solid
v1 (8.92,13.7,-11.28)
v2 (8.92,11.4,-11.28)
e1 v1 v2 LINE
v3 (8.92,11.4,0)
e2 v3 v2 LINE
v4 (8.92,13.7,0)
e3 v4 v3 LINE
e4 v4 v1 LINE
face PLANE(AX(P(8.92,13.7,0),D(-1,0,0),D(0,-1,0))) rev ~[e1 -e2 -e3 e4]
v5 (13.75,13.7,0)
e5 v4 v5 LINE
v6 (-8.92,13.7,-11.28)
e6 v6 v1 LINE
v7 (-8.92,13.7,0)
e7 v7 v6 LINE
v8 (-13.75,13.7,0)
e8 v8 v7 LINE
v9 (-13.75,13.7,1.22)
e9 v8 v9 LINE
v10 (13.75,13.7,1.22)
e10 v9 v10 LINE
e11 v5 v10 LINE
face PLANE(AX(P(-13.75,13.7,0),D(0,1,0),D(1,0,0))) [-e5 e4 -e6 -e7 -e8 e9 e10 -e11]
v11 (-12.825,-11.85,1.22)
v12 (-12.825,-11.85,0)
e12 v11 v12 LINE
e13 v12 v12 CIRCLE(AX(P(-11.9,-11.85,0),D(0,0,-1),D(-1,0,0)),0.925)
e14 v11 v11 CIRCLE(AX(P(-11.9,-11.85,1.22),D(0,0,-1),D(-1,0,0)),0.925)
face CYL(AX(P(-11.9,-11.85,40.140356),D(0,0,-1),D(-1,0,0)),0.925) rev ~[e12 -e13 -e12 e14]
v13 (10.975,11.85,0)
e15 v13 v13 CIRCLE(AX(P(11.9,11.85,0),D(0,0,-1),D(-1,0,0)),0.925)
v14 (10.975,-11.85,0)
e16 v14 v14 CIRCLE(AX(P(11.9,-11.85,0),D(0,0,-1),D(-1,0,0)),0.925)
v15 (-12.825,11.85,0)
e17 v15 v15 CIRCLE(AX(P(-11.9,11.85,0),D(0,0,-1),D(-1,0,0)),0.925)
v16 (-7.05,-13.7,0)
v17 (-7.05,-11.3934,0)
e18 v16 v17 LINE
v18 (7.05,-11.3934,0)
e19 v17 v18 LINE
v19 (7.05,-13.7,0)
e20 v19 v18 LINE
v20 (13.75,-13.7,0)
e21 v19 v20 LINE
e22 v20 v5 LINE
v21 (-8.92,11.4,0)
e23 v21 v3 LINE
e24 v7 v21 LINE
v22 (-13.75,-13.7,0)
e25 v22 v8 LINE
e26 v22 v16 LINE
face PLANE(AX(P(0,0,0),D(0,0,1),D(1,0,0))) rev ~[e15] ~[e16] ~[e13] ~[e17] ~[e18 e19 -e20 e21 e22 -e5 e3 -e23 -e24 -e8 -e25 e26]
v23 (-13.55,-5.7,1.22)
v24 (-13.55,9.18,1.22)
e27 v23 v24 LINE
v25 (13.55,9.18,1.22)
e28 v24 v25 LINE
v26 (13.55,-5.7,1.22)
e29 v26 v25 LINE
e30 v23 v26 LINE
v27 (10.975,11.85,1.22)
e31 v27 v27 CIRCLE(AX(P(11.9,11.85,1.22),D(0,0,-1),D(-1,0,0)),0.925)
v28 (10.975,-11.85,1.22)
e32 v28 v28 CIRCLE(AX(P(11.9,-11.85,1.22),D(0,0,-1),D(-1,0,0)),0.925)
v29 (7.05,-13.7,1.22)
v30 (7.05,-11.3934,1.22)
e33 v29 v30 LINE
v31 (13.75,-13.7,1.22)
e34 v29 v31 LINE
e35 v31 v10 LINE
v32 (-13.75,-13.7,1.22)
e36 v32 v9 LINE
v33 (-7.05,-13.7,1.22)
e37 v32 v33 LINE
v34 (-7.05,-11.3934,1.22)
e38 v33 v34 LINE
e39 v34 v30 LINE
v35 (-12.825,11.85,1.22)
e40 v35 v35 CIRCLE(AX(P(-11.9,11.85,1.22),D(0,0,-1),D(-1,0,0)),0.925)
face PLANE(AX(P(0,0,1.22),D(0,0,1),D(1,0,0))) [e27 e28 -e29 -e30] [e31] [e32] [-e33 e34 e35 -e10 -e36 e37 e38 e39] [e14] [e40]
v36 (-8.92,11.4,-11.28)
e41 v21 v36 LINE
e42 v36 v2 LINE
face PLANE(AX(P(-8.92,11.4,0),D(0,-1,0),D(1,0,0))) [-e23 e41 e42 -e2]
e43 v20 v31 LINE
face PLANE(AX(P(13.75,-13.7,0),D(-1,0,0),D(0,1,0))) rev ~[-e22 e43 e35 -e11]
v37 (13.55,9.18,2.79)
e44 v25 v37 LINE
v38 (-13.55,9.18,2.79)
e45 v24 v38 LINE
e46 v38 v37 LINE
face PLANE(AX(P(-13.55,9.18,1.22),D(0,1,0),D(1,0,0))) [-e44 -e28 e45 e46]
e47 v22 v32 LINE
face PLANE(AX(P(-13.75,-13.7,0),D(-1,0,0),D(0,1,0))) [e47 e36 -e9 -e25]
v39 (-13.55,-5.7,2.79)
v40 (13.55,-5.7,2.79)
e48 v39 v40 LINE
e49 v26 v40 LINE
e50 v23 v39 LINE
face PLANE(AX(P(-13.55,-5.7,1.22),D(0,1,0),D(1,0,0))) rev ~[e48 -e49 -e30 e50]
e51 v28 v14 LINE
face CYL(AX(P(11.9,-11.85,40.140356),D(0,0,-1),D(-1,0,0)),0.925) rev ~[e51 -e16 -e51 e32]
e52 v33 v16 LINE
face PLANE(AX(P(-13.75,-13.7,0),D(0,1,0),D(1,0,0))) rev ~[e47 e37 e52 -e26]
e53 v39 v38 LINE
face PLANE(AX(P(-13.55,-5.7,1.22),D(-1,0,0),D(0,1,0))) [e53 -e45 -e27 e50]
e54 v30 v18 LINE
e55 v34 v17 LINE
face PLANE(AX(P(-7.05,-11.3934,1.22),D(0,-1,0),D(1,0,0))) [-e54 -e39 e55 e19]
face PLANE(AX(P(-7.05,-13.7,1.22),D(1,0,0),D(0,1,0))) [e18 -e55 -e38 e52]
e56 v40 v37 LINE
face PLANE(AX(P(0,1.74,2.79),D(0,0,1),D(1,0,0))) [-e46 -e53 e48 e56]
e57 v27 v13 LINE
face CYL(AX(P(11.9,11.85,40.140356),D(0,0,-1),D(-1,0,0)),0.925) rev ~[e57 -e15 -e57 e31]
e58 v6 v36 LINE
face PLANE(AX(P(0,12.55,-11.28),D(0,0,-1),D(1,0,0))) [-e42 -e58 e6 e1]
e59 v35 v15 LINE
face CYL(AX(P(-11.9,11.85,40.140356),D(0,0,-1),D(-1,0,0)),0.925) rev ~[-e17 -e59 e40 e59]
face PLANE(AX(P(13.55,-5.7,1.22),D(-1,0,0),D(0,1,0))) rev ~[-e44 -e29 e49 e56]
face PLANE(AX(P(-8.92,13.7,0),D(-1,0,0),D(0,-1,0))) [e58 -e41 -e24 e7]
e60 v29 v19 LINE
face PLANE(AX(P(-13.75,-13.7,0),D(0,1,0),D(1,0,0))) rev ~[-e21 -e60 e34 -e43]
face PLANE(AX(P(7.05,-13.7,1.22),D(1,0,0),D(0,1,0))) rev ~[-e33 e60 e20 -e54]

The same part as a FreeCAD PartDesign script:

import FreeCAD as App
import Part
import Sketcher
Q = App.Units.Quantity

doc = App.newDocument("Part")
body = doc.addObject("PartDesign::Body", "Body")

sketch1 = body.newObject("Sketcher::SketchObject", "Sketch")
sketch1.AttachmentSupport = (doc.getObject("XY_Plane"), [""])
sketch1.MapMode = "FlatFace"
sketch1.addGeometry([
    Part.LineSegment(App.Vector(-14, 14, 0), App.Vector(-14, -14, 0)),
    Part.LineSegment(App.Vector(-14, -14, 0), App.Vector(14, -14, 0)),
    Part.LineSegment(App.Vector(14, -14, 0), App.Vector(14, 14, 0)),
    Part.LineSegment(App.Vector(14, 14, 0), App.Vector(-14, 14, 0)),
], False)
sketch1.addConstraint([
    Sketcher.Constraint("Coincident", 0, 2, 1, 1),
    Sketcher.Constraint("Coincident", 1, 2, 2, 1),
    Sketcher.Constraint("Coincident", 2, 2, 3, 1),
    Sketcher.Constraint("Coincident", 3, 2, 0, 1),
    Sketcher.Constraint("Vertical", 0),
    Sketcher.Constraint("Horizontal", 1),
    Sketcher.Constraint("Vertical", 2),
    Sketcher.Constraint("Horizontal", 3),
    Sketcher.Constraint("Symmetric", 0, 2, 2, 2, -1, 1),
    Sketcher.Constraint("DistanceX", 1, 1, 1, 2, Q("27.5 mm")),
    Sketcher.Constraint("DistanceY", 0, 2, 0, 1, Q("27.4 mm")),
])
pad1 = body.newObject("PartDesign::Pad", "Pad")
pad1.Profile = sketch1
pad1.Length = 1.22

sketch2 = body.newObject("Sketcher::SketchObject", "Sketch001")
sketch2.AttachmentSupport = (doc.getObject("XY_Plane"), [""])
sketch2.MapMode = "FlatFace"
sketch2.AttachmentOffset = App.Placement(App.Vector(0, 0, 1.22), App.Rotation())
sketch2.addGeometry([
    Part.LineSegment(App.Vector(-7, -11.4, 0), App.Vector(-7, -13.7, 0)),
    Part.LineSegment(App.Vector(-7, -13.7, 0), App.Vector(7, -13.7, 0)),
    Part.LineSegment(App.Vector(7, -13.7, 0), App.Vector(7, -11.4, 0)),
    Part.LineSegment(App.Vector(7, -11.4, 0), App.Vector(-7, -11.4, 0)),
], False)
sketch2.addConstraint([
    Sketcher.Constraint("Coincident", 0, 2, 1, 1),
    Sketcher.Constraint("Coincident", 1, 2, 2, 1),
    Sketcher.Constraint("Coincident", 2, 2, 3, 1),
    Sketcher.Constraint("Coincident", 3, 2, 0, 1),
    Sketcher.Constraint("Vertical", 0),
    Sketcher.Constraint("Horizontal", 1),
    Sketcher.Constraint("Vertical", 2),
    Sketcher.Constraint("Horizontal", 3),
    Sketcher.Constraint("DistanceX", 1, 1, 1, 2, Q("14.1 mm")),
    Sketcher.Constraint("DistanceY", 0, 2, -1, 1, Q("13.7 mm")),
    Sketcher.Constraint("DistanceX", 0, 2, -1, 1, Q("7.05 mm")),
    Sketcher.Constraint("DistanceY", 0, 2, 0, 1, Q("2.3066 mm")),
])
pocket1 = body.newObject("PartDesign::Pocket", "Pocket")
pocket1.Profile = sketch2
pocket1.Length = 25.4

sketch3 = body.newObject("Sketcher::SketchObject", "Sketch002")
sketch3.AttachmentSupport = (doc.getObject("XY_Plane"), [""])
sketch3.MapMode = "FlatFace"
sketch3.AttachmentOffset = App.Placement(App.Vector(0, 0, 1.22), App.Rotation())
sketch3.addGeometry([
    Part.LineSegment(App.Vector(-14, 9, 0), App.Vector(-14, -6, 0)),
    Part.LineSegment(App.Vector(-14, -6, 0), App.Vector(14, -6, 0)),
    Part.LineSegment(App.Vector(14, -6, 0), App.Vector(14, 9, 0)),
    Part.LineSegment(App.Vector(14, 9, 0), App.Vector(-14, 9, 0)),
], False)
sketch3.addConstraint([
    Sketcher.Constraint("Coincident", 0, 2, 1, 1),
    Sketcher.Constraint("Coincident", 1, 2, 2, 1),
    Sketcher.Constraint("Coincident", 2, 2, 3, 1),
    Sketcher.Constraint("Coincident", 3, 2, 0, 1),
    Sketcher.Constraint("Vertical", 0),
    Sketcher.Constraint("Horizontal", 1),
    Sketcher.Constraint("Vertical", 2),
    Sketcher.Constraint("Horizontal", 3),
    Sketcher.Constraint("DistanceX", 1, 1, 1, 2, Q("27.1 mm")),
    Sketcher.Constraint("DistanceY", 0, 2, 0, 1, Q("14.88 mm")),
    Sketcher.Constraint("DistanceY", 0, 2, -1, 1, Q("5.7 mm")),
    Sketcher.Constraint("DistanceX", 0, 2, -1, 1, Q("13.55 mm")),
])
pad2 = body.newObject("PartDesign::Pad", "Pad001")
pad2.Profile = sketch3
pad2.Length = 1.57

sketch4 = body.newObject("Sketcher::SketchObject", "Sketch003")
sketch4.AttachmentSupport = (doc.getObject("XY_Plane"), [""])
sketch4.MapMode = "FlatFace"
sketch4.AttachmentOffset = App.Placement(App.Vector(0, 0, 1.22), App.Rotation())
sketch4.addGeometry([
    Part.Circle(App.Vector(-11.9, -11.8, 0), App.Vector(0, 0, 1), 0.9),
    Part.Circle(App.Vector(-11.9, 11.8, 0), App.Vector(0, 0, 1), 0.9),
    Part.Circle(App.Vector(11.9, 11.8, 0), App.Vector(0, 0, 1), 0.9),
    Part.Circle(App.Vector(11.9, -11.8, 0), App.Vector(0, 0, 1), 0.9),
], False)
sketch4.addConstraint([
    Sketcher.Constraint("Equal", 0, 1),
    Sketcher.Constraint("Equal", 1, 2),
    Sketcher.Constraint("Equal", 2, 3),
    Sketcher.Constraint("Symmetric", 0, 3, 2, 3, -1, 1),
    Sketcher.Constraint("Symmetric", 1, 3, 3, 3, -1, 1),
    Sketcher.Constraint("Symmetric", 1, 3, 2, 3, -2),
    Sketcher.Constraint("Diameter", 0, Q("1.85 mm")),
    Sketcher.Constraint("DistanceX", 0, 3, -1, 1, Q("11.9 mm")),
    Sketcher.Constraint("DistanceY", 0, 3, 1, 3, Q("23.7 mm")),
])
doc.recompute()
hole = body.newObject("PartDesign::Hole", "Hole")
hole.Profile = sketch4
hole.ThreadType = "None"
hole.Diameter = 1.85
hole.DepthType = "ThroughAll"

sketch5 = body.newObject("Sketcher::SketchObject", "Sketch004")
sketch5.AttachmentSupport = (doc.getObject("XY_Plane"), [""])
sketch5.MapMode = "FlatFace"
sketch5.addGeometry([
    Part.LineSegment(App.Vector(-8.9, 11.4, 0), App.Vector(-8.9, 13.7, 0)),
    Part.LineSegment(App.Vector(-8.9, 13.7, 0), App.Vector(8.9, 13.7, 0)),
    Part.LineSegment(App.Vector(8.9, 13.7, 0), App.Vector(8.9, 11.4, 0)),
    Part.LineSegment(App.Vector(8.9, 11.4, 0), App.Vector(-8.9, 11.4, 0)),
], False)
sketch5.addConstraint([
    Sketcher.Constraint("Coincident", 0, 2, 1, 1),
    Sketcher.Constraint("Coincident", 1, 2, 2, 1),
    Sketcher.Constraint("Coincident", 2, 2, 3, 1),
    Sketcher.Constraint("Coincident", 3, 2, 0, 1),
    Sketcher.Constraint("Vertical", 0),
    Sketcher.Constraint("Horizontal", 1),
    Sketcher.Constraint("Vertical", 2),
    Sketcher.Constraint("Horizontal", 3),
    Sketcher.Constraint("DistanceY", 0, 1, 0, 2, Q("2.3 mm")),
    Sketcher.Constraint("DistanceX", 1, 1, 1, 2, Q("17.84 mm")),
    Sketcher.Constraint("DistanceY", -1, 1, 0, 2, Q("13.7 mm")),
    Sketcher.Constraint("DistanceX", 0, 2, -1, 1, Q("8.92 mm")),
])
pad3 = body.newObject("PartDesign::Pad", "Pad002")
pad3.Profile = sketch5
pad3.Length = 11.28
pad3.Reversed = True

doc.recompute()
